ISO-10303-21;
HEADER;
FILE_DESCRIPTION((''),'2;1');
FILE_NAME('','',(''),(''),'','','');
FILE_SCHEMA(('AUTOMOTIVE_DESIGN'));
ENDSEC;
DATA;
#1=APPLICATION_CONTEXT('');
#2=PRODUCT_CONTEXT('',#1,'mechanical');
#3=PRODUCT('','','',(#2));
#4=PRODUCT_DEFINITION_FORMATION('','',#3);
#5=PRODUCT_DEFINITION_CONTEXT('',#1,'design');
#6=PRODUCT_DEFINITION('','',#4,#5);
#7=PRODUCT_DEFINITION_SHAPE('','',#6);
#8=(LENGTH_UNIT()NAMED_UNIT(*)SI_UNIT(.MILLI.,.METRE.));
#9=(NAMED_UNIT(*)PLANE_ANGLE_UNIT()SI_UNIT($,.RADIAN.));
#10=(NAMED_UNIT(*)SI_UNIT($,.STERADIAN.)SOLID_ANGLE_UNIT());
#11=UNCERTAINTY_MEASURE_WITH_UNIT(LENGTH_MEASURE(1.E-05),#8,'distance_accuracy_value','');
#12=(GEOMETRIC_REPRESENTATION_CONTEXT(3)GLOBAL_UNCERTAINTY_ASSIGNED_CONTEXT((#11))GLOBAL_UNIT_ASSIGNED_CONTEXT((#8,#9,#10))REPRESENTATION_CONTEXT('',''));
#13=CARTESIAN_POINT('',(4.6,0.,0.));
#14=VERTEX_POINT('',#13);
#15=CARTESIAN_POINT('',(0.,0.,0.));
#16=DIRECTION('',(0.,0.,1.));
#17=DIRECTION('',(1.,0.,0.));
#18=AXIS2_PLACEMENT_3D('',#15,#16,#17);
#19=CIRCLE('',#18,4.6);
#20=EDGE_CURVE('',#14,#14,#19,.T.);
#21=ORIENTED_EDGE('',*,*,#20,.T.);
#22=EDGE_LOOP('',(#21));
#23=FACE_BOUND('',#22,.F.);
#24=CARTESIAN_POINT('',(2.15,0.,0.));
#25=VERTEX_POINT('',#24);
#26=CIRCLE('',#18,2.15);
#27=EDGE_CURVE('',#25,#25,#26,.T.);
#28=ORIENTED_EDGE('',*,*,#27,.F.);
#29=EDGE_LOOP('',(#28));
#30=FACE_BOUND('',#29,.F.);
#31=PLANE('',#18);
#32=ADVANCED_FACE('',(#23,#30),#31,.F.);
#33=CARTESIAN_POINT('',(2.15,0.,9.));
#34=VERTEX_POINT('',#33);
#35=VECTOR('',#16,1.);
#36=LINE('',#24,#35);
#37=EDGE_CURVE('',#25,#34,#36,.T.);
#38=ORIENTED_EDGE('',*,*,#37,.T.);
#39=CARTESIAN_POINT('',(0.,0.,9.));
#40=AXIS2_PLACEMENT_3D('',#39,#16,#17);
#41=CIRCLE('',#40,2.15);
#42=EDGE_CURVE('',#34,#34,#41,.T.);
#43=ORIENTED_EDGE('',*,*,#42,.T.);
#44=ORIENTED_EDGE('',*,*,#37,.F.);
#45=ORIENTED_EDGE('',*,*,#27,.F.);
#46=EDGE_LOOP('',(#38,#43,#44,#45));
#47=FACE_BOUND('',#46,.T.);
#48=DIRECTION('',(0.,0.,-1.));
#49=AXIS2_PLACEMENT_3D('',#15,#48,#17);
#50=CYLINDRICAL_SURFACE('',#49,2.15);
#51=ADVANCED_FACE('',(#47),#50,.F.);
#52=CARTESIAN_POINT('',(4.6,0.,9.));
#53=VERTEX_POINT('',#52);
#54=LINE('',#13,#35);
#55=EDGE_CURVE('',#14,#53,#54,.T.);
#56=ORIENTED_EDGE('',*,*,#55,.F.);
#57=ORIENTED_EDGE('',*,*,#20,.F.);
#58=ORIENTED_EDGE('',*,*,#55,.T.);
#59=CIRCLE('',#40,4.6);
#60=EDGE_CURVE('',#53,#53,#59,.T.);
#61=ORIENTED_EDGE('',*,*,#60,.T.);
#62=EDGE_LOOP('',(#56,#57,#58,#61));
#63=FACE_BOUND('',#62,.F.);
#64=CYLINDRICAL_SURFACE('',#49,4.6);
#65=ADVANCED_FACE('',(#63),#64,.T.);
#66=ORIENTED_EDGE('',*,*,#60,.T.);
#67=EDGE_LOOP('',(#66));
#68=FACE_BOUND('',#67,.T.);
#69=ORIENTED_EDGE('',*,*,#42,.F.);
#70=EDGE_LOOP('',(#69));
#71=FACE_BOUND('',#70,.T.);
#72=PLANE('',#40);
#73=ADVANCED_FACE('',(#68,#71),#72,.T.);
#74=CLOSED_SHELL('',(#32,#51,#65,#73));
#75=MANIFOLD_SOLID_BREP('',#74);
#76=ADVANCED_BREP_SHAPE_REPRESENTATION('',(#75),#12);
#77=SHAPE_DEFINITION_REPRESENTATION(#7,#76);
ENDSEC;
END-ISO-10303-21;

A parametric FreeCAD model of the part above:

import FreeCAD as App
import Part
import Sketcher

doc = App.newDocument("Part")
body = doc.addObject("PartDesign::Body", "Body")

sketch1 = doc.addObject("Sketcher::SketchObject", "Sketch")
body.addObject(sketch1)
sketch1.AttachmentSupport = (doc.XY_Plane, [""])
sketch1.MapMode = "FlatFace"
sketch1.addGeometry([
    Part.Circle(App.Vector(0, 0, 0), App.Vector(0, 0, 1), 4.6),
    Part.Circle(App.Vector(0, 0, 0), App.Vector(0, 0, 1), 2.15),
], False)
sketch1.addConstraint([
    Sketcher.Constraint("Coincident", 0, 3, -1, 1),
    Sketcher.Constraint("Coincident", 1, 3, -1, 1),
    Sketcher.Constraint("Diameter", 0, 9.2),
    Sketcher.Constraint("Diameter", 1, 4.3),
])
pad1 = doc.addObject("PartDesign::Pad", "Pad")
body.addObject(pad1)
pad1.Profile = sketch1
pad1.Length = 9

doc.recompute()
